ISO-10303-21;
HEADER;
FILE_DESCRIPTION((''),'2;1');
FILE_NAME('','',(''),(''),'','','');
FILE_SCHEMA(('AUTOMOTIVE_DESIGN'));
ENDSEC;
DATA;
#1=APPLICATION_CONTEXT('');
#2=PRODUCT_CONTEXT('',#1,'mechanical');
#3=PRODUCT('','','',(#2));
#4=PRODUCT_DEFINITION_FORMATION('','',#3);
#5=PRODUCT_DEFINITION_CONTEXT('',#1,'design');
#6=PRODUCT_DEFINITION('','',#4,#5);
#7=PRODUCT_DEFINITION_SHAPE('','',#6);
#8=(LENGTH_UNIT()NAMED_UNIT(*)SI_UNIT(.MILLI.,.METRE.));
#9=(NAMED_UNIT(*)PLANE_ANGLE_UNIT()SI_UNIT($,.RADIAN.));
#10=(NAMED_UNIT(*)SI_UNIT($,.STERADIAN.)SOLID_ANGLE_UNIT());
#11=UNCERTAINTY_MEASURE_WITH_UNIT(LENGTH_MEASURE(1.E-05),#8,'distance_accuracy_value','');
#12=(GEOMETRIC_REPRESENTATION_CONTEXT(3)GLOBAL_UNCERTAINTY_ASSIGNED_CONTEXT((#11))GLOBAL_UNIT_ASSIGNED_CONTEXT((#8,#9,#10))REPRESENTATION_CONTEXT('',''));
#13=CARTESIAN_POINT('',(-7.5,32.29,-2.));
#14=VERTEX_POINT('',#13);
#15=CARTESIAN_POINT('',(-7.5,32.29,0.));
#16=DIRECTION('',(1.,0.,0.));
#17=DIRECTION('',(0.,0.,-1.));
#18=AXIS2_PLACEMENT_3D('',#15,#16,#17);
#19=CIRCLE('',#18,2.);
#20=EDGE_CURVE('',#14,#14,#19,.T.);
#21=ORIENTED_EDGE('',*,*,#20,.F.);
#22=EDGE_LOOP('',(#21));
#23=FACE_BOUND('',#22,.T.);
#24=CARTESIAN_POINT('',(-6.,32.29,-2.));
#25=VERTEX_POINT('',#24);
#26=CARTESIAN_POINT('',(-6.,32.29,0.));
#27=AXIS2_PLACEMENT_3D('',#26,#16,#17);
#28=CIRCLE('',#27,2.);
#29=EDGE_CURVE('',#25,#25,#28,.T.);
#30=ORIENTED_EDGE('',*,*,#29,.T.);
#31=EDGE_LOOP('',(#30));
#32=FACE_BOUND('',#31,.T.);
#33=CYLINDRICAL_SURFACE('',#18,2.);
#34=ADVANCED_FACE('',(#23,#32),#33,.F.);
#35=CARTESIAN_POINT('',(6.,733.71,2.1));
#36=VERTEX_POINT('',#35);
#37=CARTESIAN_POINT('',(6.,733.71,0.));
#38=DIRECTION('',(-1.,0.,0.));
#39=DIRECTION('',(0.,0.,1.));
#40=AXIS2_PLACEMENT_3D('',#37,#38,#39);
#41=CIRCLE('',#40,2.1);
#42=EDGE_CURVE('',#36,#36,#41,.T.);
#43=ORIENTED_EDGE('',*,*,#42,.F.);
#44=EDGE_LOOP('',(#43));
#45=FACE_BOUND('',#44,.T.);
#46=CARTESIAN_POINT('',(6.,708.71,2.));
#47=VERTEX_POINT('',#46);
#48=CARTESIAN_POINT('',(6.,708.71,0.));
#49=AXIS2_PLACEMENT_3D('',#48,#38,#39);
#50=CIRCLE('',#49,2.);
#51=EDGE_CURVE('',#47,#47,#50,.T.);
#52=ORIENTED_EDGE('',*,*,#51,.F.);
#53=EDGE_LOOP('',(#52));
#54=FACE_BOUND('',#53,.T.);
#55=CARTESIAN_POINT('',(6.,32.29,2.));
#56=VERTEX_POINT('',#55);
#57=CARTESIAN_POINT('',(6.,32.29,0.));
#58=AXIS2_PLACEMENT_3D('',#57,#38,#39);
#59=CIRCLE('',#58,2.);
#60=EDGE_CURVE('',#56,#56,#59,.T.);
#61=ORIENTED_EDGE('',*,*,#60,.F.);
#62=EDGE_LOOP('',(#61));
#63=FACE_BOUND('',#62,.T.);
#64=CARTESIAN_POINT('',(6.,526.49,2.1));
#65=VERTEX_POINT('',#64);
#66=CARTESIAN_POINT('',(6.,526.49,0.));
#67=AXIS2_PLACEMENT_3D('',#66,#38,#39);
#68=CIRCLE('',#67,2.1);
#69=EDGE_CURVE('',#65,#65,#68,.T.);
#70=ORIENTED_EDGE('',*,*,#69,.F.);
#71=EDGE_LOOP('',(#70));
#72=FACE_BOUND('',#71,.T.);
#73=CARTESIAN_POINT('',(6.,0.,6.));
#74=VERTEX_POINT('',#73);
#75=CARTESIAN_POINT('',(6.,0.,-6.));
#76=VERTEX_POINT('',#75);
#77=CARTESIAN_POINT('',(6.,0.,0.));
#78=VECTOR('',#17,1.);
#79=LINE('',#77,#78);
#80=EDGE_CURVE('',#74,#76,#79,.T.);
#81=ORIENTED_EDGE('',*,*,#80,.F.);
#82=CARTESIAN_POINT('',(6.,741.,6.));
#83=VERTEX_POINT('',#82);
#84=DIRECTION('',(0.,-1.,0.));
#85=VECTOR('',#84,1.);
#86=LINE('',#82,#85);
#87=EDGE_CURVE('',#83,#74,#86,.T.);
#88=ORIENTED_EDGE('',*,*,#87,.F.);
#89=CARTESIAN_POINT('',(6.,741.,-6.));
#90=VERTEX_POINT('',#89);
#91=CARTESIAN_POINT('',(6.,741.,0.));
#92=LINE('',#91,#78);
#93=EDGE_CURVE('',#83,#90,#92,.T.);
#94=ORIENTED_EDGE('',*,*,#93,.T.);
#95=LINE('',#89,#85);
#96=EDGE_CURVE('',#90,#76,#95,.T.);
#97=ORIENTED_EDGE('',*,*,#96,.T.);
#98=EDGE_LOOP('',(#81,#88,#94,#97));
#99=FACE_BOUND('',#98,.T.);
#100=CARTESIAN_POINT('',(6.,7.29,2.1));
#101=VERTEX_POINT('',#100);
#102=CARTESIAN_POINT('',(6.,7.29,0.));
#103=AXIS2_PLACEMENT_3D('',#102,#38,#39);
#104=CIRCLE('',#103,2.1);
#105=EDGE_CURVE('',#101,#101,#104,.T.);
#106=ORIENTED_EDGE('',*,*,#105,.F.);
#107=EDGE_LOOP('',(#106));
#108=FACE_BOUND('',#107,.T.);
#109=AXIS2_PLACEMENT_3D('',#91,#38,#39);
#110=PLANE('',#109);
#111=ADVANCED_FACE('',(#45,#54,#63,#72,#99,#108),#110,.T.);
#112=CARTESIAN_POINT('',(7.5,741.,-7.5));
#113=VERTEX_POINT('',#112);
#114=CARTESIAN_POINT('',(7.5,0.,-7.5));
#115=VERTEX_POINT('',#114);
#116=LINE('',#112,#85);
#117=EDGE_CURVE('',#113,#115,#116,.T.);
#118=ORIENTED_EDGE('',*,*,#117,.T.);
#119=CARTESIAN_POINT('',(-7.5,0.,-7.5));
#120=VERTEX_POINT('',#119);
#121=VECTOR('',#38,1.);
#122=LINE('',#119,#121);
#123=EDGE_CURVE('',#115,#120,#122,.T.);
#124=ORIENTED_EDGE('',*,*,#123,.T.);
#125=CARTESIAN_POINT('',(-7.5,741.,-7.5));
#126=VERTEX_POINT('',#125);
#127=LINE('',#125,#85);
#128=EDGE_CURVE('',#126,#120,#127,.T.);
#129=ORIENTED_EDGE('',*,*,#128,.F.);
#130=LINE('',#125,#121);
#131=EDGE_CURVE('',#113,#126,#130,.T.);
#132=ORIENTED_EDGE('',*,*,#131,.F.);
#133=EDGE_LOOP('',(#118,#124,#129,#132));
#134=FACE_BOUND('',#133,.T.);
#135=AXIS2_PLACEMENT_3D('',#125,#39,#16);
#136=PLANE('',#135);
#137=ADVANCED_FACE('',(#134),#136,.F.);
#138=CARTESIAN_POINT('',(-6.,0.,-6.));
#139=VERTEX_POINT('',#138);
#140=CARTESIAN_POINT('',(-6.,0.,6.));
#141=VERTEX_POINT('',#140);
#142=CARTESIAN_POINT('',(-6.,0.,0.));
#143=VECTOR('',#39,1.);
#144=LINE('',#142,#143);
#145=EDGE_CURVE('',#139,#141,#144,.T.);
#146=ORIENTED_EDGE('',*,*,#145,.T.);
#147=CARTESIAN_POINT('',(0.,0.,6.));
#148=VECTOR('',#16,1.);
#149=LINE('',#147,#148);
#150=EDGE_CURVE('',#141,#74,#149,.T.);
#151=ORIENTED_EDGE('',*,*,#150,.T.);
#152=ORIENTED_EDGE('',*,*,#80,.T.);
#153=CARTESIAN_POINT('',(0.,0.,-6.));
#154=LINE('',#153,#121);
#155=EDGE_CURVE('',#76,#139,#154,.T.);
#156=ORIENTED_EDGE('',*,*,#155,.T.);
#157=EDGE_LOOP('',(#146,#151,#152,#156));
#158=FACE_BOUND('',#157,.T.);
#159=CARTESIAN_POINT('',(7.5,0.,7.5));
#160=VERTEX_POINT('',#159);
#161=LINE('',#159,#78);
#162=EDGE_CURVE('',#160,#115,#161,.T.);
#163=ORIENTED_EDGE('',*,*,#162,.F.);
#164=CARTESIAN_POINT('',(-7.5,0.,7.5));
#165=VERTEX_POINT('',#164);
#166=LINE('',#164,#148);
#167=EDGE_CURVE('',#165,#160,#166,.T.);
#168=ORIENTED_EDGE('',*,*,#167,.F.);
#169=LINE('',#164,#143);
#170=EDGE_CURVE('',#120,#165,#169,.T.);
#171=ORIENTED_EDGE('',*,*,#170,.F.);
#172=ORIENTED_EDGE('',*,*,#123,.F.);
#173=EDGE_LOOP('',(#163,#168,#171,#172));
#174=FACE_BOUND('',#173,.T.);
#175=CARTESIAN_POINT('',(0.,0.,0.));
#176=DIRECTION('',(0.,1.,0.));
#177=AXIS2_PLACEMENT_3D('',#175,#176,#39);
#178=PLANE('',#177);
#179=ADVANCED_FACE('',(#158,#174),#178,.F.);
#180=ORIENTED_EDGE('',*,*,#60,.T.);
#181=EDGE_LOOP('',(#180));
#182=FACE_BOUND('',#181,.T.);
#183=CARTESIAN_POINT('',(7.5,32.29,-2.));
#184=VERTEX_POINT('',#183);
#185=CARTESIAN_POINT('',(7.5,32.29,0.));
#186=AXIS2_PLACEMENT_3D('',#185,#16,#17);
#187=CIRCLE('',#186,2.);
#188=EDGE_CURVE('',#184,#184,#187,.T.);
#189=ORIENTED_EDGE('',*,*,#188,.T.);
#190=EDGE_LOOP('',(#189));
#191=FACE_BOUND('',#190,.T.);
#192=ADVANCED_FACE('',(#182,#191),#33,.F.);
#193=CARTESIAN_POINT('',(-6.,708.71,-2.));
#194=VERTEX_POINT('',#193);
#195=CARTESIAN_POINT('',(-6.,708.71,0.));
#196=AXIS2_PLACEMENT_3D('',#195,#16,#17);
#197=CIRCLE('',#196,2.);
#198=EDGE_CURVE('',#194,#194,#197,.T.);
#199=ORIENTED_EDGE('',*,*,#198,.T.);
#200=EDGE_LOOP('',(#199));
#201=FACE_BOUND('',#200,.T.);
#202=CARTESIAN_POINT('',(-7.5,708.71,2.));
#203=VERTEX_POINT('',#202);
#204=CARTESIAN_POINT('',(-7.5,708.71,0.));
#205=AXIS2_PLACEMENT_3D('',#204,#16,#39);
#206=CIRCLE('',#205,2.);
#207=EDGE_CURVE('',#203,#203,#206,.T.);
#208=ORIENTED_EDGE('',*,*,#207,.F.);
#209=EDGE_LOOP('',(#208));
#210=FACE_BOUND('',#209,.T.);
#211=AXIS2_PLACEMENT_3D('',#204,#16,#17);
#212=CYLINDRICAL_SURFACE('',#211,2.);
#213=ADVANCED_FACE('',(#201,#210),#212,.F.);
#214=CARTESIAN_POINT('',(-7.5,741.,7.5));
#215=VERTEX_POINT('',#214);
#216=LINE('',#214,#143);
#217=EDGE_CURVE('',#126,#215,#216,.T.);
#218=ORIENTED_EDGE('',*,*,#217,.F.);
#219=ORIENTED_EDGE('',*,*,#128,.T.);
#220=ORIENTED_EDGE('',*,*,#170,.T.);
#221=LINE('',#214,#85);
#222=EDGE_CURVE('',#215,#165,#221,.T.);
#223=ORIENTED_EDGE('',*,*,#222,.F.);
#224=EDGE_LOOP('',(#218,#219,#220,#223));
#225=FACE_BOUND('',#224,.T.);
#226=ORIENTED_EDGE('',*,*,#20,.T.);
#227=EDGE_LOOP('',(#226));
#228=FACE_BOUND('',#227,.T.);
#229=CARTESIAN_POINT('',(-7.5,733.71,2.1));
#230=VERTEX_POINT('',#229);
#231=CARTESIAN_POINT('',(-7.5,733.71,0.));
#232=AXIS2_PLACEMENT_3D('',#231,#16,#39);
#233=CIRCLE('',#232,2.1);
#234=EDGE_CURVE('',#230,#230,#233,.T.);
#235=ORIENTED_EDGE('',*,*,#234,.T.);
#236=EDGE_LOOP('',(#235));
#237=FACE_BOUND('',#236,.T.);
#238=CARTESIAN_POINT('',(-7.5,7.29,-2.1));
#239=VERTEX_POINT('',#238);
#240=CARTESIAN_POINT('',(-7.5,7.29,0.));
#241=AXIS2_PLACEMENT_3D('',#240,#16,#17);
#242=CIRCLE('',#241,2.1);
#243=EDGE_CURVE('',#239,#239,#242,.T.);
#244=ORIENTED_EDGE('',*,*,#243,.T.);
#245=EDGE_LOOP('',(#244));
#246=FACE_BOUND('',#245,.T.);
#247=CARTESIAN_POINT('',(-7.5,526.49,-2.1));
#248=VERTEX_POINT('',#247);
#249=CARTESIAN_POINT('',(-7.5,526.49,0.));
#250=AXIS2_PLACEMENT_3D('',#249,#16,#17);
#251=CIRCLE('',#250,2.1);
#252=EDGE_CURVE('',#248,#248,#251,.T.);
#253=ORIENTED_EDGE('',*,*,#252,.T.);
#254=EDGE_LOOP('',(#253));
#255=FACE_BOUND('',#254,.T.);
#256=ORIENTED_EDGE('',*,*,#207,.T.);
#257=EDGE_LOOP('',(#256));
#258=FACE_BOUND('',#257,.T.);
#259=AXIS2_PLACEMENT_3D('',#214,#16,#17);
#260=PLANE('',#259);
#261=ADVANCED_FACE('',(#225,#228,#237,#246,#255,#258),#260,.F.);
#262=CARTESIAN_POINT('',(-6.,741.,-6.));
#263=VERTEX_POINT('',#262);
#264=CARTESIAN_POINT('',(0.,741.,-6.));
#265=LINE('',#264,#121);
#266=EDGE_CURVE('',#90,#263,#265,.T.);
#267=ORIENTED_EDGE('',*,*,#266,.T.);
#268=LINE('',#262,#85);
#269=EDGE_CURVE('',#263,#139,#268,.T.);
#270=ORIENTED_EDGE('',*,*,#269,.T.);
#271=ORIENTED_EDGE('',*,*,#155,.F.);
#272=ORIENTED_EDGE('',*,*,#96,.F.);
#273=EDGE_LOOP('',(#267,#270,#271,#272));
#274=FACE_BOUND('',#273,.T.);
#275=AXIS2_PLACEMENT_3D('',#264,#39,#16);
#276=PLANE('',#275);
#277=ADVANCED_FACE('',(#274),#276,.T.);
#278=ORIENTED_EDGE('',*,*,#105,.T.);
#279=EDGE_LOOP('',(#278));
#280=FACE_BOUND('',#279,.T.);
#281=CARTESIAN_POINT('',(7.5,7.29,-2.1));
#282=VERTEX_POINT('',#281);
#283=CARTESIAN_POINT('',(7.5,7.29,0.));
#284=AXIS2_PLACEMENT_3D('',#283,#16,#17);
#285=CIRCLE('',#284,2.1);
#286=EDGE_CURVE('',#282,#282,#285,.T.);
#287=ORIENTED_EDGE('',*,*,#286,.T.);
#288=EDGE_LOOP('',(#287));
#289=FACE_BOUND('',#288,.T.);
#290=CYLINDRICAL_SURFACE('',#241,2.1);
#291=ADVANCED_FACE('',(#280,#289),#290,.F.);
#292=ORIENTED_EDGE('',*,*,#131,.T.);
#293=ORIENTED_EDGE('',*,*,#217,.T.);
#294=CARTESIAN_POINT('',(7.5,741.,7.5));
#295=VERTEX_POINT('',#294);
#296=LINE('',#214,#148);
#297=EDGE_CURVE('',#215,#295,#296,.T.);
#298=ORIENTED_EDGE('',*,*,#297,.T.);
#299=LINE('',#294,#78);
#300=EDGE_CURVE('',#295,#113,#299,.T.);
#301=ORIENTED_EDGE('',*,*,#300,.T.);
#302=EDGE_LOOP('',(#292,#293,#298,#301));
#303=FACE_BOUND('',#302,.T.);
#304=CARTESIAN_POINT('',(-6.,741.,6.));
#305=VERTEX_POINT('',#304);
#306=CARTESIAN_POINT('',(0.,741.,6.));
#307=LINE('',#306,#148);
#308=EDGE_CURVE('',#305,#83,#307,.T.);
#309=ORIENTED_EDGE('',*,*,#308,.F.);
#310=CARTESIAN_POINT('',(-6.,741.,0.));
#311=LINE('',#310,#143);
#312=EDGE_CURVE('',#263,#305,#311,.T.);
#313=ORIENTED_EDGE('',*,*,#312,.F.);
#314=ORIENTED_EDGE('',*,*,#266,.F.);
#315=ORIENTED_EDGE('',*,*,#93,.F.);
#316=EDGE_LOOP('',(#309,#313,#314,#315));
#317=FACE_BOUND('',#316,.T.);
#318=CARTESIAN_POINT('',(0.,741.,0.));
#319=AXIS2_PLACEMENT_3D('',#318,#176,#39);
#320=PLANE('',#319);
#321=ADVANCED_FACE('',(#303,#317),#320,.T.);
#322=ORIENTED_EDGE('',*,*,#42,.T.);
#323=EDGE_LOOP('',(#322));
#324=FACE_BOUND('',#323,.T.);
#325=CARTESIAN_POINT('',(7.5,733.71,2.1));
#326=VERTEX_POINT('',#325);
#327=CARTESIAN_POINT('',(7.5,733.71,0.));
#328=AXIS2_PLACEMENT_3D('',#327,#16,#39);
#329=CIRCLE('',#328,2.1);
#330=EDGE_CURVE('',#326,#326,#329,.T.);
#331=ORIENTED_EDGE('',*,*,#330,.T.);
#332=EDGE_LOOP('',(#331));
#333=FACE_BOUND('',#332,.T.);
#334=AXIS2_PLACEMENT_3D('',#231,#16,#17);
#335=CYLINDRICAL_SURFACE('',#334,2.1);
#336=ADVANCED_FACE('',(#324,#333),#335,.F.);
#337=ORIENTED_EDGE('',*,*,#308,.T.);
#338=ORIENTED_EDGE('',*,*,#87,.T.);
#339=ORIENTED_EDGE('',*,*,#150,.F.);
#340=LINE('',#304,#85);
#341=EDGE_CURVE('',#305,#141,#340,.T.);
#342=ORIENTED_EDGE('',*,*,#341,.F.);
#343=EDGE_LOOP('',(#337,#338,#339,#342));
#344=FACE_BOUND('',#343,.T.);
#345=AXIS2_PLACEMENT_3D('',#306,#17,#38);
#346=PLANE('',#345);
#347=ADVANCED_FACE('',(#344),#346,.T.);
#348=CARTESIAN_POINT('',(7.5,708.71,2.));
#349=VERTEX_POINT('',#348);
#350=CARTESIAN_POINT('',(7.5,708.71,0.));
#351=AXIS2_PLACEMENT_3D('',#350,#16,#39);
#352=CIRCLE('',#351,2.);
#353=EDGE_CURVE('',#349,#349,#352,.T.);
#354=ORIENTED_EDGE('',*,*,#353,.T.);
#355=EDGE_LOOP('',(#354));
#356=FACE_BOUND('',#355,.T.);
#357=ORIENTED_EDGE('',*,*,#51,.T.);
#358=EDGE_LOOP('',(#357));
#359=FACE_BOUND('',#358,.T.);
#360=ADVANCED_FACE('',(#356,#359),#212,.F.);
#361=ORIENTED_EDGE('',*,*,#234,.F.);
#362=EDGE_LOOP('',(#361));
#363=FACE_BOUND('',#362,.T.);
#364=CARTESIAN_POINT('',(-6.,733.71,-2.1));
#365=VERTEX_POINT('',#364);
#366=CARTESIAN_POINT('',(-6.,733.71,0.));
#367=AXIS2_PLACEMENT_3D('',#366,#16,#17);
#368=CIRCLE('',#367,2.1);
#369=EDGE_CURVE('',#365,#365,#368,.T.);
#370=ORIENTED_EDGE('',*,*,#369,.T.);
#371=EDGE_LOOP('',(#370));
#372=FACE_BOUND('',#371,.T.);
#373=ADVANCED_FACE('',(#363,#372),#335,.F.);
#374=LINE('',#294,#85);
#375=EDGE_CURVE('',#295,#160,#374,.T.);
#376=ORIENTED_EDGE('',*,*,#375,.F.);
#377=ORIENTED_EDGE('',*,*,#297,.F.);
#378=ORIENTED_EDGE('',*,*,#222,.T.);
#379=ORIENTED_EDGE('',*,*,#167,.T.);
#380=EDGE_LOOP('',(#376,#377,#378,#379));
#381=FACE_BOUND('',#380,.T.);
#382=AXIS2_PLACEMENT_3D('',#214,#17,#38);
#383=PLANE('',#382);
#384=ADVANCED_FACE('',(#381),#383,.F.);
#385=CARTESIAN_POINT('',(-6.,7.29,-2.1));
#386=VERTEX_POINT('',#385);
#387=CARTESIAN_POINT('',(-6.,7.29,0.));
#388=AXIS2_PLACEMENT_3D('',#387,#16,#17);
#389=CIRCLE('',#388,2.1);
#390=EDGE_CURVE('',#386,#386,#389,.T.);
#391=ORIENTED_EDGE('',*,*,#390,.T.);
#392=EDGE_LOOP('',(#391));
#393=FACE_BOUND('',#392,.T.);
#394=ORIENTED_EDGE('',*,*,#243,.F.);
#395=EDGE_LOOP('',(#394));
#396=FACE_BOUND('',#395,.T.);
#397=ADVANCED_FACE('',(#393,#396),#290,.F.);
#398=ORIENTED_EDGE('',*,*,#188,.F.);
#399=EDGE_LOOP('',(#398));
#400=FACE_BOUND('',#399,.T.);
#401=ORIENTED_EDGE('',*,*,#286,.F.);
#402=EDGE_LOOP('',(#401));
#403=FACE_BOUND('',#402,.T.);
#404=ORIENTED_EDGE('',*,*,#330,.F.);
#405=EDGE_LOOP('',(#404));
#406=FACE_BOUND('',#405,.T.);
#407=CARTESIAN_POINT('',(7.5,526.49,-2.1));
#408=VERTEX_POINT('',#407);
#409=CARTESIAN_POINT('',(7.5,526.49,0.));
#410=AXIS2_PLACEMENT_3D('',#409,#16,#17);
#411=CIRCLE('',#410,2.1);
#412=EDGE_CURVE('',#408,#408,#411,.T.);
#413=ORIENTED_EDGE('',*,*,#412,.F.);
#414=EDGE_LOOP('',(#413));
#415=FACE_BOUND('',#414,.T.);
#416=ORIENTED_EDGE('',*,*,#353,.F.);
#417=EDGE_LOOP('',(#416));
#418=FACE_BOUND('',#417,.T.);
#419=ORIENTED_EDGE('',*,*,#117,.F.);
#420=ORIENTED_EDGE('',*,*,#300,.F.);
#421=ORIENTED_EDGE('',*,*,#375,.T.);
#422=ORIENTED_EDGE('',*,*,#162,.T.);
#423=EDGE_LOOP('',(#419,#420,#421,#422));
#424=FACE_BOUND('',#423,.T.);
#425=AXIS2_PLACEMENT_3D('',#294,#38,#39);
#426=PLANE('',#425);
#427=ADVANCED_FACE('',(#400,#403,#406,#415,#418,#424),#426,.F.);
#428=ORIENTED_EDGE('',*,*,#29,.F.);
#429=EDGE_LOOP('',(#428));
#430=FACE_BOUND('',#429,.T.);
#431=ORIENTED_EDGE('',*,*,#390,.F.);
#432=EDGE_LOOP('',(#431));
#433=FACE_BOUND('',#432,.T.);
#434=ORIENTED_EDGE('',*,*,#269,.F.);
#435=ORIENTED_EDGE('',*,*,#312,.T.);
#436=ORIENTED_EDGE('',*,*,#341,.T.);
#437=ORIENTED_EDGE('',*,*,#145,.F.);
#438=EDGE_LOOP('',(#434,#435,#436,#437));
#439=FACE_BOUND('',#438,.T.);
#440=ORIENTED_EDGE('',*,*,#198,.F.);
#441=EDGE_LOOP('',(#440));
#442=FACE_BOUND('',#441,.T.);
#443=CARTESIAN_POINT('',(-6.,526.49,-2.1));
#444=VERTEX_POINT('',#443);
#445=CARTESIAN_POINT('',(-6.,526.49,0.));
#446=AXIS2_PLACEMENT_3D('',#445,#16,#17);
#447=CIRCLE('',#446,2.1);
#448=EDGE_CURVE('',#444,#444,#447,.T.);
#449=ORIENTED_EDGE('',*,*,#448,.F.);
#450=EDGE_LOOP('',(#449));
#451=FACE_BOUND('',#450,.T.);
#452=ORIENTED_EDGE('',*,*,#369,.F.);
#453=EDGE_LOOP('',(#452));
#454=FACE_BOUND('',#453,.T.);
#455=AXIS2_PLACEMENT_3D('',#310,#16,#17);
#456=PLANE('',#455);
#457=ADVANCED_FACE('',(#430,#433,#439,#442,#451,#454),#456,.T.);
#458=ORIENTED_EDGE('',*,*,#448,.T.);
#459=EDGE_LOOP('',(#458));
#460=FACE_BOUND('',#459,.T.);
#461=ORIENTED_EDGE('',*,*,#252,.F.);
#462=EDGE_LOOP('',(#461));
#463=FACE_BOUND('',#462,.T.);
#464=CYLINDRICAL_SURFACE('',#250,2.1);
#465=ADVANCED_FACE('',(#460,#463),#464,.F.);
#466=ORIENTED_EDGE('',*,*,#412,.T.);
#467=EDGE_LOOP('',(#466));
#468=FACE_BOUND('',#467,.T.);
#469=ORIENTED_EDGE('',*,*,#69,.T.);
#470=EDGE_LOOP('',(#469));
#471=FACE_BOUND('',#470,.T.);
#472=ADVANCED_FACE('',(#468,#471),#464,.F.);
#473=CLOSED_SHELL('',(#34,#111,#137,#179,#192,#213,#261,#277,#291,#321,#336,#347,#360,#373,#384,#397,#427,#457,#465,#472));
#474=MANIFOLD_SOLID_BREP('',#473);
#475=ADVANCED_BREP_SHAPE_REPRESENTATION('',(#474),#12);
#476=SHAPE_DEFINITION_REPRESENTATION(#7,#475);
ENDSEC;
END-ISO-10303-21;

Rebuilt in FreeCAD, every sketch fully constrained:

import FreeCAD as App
import Part
import Sketcher
from FreeCAD import Vector
Q = App.Units.Quantity


def add_polygon(sketch, points):
    """Adds a closed chain of lines whose ends are joined by coincident constraints."""
    first, n = sketch.GeometryCount, len(points)
    for a, b in zip(points, points[1:] + points[:1]):
        sketch.addGeometry(Part.LineSegment(App.Vector(*a, 0), App.Vector(*b, 0)), False)
    for i in range(n):
        sketch.addConstraint(Sketcher.Constraint("Coincident", first + i, 2, first + (i + 1) % n, 1))

doc = App.newDocument("Part")
body = doc.addObject("PartDesign::Body", "Body")

# Sketch on XZ plane
sketch1 = body.newObject("Sketcher::SketchObject", "Sketch")
sketch1.AttachmentSupport = (doc.getObject("XZ_Plane"), [""])
sketch1.MapMode = "FlatFace"
add_polygon(sketch1, [(-8, -8), (-8, 8), (8, 8), (8, -8)])  # lines 0-3
add_polygon(sketch1, [(6, 6), (-6, 6), (-6, -6), (6, -6)])  # lines 4-7
sketch1.addConstraint([
    Sketcher.Constraint("Vertical", 0),
    Sketcher.Constraint("Horizontal", 1),
    Sketcher.Constraint("Vertical", 2),
    Sketcher.Constraint("Horizontal", 3),
    Sketcher.Constraint("Horizontal", 4),
    Sketcher.Constraint("Vertical", 5),
    Sketcher.Constraint("Horizontal", 6),
    Sketcher.Constraint("Vertical", 7),
    Sketcher.Constraint("Symmetric", 0, 2, 2, 2, -1, 1),
    Sketcher.Constraint("Symmetric", 4, 2, 6, 2, -1, 1),
    Sketcher.Constraint("Equal", 3, 0),
    Sketcher.Constraint("Equal", 6, 5),
    Sketcher.Constraint("DistanceX", 1, 1, 1, 2, Q("15 mm")),
    Sketcher.Constraint("DistanceX", 4, 2, 4, 1, Q("12 mm")),
])
pad1 = body.newObject("PartDesign::Pad", "Pad")
pad1.Profile = sketch1
pad1.Length = 741
pad1.Reversed = True

# Sketch on YZ plane
sketch2 = body.newObject("Sketcher::SketchObject", "Sketch001")
sketch2.AttachmentSupport = (doc.getObject("YZ_Plane"), [""])
sketch2.MapMode = "FlatFace"
sketch2.AttachmentOffset = App.Placement(Vector(0, 0, 7.5), App.Rotation())
sketch2.addGeometry([
    Part.Circle(Vector(7.3, 0, 0), Vector(0, 0, 1), 2.1),  # 0
    Part.Circle(Vector(32.3, 0, 0), Vector(0, 0, 1), 2),  # 1
    Part.Circle(Vector(708.7, 0, 0), Vector(0, 0, 1), 2),  # 2
    Part.Circle(Vector(733.7, 0, 0), Vector(0, 0, 1), 2.1),  # 3
    Part.Circle(Vector(526.5, 0, 0), Vector(0, 0, 1), 2.1),  # 4
], False)
sketch2.addConstraint([
    Sketcher.Constraint("Equal", 1, 2),
    Sketcher.Constraint("Equal", 0, 3),
    Sketcher.Constraint("Equal", 3, 4),
    Sketcher.Constraint("PointOnObject", 0, 3, -1),
    Sketcher.Constraint("PointOnObject", 1, 3, -1),
    Sketcher.Constraint("PointOnObject", 2, 3, -1),
    Sketcher.Constraint("PointOnObject", 3, 3, -1),
    Sketcher.Constraint("PointOnObject", 4, 3, -1),
    Sketcher.Constraint("Diameter", 1, Q("4 mm")),
    Sketcher.Constraint("Diameter", 0, Q("4.2 mm")),
    Sketcher.Constraint("DistanceX", 0, 3, 1, 3, Q("25 mm")),
    Sketcher.Constraint("DistanceX", 2, 3, 3, 3, Q("25 mm")),
    Sketcher.Constraint("DistanceX", 1, 3, 4, 3, Q("494.2 mm")),
    Sketcher.Constraint("DistanceX", -1, 1, 0, 3, Q("7.29 mm")),
    Sketcher.Constraint("DistanceX", -1, 1, 2, 3, Q("708.71 mm")),
])
pocket1 = body.newObject("PartDesign::Pocket", "Pocket")
pocket1.Profile = sketch2
pocket1.Type = "ThroughAll"

doc.recompute()
